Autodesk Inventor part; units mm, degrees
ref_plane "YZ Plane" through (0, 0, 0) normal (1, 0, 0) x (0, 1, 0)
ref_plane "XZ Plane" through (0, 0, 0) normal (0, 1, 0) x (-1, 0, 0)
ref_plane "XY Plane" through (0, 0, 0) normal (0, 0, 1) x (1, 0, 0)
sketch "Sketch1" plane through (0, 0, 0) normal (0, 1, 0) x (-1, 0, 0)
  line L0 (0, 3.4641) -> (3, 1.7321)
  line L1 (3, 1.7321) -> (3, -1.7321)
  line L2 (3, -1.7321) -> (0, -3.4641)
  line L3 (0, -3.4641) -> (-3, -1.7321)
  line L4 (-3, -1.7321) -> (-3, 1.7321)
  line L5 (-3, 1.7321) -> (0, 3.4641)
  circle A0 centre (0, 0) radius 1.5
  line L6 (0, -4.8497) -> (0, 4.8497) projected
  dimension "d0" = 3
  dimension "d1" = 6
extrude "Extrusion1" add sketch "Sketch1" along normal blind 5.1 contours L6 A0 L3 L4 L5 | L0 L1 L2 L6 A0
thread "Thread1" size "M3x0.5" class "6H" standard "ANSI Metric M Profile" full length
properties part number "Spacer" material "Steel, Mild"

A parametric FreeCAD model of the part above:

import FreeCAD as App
import Part
import Sketcher
from FreeCAD import Vector
Q = App.Units.Quantity


def add_polygon(sketch, points):
    """Adds a closed chain of lines whose ends are joined by coincident constraints."""
    first, n = sketch.GeometryCount, len(points)
    for a, b in zip(points, points[1:] + points[:1]):
        sketch.addGeometry(Part.LineSegment(App.Vector(*a, 0), App.Vector(*b, 0)), False)
    for i in range(n):
        sketch.addConstraint(Sketcher.Constraint("Coincident", first + i, 2, first + (i + 1) % n, 1))

doc = App.newDocument("Part")
body = doc.addObject("PartDesign::Body", "Body")

# Sketch on XZ plane
sketch1 = doc.addObject("Sketcher::SketchObject", "Sketch")
body.addObject(sketch1)
sketch1.AttachmentSupport = (doc.XZ_Plane, [""])
sketch1.MapMode = "FlatFace"
add_polygon(sketch1, [(3, -1.7), (0, -3.5), (-3, -1.7), (-3, 1.7), (0, 3.5), (3, 1.7)])  # lines 0-5
sketch1.addGeometry(Part.Circle(Vector(0, 0, 0), Vector(0, 0, 1), 1.5), False)  # 6
sketch1.addConstraint([
    Sketcher.Constraint("Vertical", 2),
    Sketcher.Constraint("Vertical", 5),
    Sketcher.Constraint("Coincident", 6, 3, -1, 1),
    Sketcher.Constraint("Symmetric", 0, 2, 3, 2, -1, 1),
    Sketcher.Constraint("Symmetric", 1, 2, 4, 2, -1, 1),
    Sketcher.Constraint("PointOnObject", 0, 2, -2),
    Sketcher.Constraint("Parallel", 0, 3),
    Sketcher.Constraint("Horizontal", 2, 2, 4, 2),
    Sketcher.Constraint("Diameter", 6, Q("3 mm")),
    Sketcher.Constraint("DistanceX", 1, 2, -1, 1, Q("3 mm")),
    Sketcher.Constraint("Angle", 0, Q("-150.0007 deg")),
    Sketcher.Constraint("DistanceY", 2, 1, 2, 2, Q("3.4642 mm")),
])
pad1 = doc.addObject("PartDesign::Pad", "Pad")
body.addObject(pad1)
pad1.Profile = sketch1
pad1.Length = 5.1
pad1.Reversed = True

doc.recompute()
